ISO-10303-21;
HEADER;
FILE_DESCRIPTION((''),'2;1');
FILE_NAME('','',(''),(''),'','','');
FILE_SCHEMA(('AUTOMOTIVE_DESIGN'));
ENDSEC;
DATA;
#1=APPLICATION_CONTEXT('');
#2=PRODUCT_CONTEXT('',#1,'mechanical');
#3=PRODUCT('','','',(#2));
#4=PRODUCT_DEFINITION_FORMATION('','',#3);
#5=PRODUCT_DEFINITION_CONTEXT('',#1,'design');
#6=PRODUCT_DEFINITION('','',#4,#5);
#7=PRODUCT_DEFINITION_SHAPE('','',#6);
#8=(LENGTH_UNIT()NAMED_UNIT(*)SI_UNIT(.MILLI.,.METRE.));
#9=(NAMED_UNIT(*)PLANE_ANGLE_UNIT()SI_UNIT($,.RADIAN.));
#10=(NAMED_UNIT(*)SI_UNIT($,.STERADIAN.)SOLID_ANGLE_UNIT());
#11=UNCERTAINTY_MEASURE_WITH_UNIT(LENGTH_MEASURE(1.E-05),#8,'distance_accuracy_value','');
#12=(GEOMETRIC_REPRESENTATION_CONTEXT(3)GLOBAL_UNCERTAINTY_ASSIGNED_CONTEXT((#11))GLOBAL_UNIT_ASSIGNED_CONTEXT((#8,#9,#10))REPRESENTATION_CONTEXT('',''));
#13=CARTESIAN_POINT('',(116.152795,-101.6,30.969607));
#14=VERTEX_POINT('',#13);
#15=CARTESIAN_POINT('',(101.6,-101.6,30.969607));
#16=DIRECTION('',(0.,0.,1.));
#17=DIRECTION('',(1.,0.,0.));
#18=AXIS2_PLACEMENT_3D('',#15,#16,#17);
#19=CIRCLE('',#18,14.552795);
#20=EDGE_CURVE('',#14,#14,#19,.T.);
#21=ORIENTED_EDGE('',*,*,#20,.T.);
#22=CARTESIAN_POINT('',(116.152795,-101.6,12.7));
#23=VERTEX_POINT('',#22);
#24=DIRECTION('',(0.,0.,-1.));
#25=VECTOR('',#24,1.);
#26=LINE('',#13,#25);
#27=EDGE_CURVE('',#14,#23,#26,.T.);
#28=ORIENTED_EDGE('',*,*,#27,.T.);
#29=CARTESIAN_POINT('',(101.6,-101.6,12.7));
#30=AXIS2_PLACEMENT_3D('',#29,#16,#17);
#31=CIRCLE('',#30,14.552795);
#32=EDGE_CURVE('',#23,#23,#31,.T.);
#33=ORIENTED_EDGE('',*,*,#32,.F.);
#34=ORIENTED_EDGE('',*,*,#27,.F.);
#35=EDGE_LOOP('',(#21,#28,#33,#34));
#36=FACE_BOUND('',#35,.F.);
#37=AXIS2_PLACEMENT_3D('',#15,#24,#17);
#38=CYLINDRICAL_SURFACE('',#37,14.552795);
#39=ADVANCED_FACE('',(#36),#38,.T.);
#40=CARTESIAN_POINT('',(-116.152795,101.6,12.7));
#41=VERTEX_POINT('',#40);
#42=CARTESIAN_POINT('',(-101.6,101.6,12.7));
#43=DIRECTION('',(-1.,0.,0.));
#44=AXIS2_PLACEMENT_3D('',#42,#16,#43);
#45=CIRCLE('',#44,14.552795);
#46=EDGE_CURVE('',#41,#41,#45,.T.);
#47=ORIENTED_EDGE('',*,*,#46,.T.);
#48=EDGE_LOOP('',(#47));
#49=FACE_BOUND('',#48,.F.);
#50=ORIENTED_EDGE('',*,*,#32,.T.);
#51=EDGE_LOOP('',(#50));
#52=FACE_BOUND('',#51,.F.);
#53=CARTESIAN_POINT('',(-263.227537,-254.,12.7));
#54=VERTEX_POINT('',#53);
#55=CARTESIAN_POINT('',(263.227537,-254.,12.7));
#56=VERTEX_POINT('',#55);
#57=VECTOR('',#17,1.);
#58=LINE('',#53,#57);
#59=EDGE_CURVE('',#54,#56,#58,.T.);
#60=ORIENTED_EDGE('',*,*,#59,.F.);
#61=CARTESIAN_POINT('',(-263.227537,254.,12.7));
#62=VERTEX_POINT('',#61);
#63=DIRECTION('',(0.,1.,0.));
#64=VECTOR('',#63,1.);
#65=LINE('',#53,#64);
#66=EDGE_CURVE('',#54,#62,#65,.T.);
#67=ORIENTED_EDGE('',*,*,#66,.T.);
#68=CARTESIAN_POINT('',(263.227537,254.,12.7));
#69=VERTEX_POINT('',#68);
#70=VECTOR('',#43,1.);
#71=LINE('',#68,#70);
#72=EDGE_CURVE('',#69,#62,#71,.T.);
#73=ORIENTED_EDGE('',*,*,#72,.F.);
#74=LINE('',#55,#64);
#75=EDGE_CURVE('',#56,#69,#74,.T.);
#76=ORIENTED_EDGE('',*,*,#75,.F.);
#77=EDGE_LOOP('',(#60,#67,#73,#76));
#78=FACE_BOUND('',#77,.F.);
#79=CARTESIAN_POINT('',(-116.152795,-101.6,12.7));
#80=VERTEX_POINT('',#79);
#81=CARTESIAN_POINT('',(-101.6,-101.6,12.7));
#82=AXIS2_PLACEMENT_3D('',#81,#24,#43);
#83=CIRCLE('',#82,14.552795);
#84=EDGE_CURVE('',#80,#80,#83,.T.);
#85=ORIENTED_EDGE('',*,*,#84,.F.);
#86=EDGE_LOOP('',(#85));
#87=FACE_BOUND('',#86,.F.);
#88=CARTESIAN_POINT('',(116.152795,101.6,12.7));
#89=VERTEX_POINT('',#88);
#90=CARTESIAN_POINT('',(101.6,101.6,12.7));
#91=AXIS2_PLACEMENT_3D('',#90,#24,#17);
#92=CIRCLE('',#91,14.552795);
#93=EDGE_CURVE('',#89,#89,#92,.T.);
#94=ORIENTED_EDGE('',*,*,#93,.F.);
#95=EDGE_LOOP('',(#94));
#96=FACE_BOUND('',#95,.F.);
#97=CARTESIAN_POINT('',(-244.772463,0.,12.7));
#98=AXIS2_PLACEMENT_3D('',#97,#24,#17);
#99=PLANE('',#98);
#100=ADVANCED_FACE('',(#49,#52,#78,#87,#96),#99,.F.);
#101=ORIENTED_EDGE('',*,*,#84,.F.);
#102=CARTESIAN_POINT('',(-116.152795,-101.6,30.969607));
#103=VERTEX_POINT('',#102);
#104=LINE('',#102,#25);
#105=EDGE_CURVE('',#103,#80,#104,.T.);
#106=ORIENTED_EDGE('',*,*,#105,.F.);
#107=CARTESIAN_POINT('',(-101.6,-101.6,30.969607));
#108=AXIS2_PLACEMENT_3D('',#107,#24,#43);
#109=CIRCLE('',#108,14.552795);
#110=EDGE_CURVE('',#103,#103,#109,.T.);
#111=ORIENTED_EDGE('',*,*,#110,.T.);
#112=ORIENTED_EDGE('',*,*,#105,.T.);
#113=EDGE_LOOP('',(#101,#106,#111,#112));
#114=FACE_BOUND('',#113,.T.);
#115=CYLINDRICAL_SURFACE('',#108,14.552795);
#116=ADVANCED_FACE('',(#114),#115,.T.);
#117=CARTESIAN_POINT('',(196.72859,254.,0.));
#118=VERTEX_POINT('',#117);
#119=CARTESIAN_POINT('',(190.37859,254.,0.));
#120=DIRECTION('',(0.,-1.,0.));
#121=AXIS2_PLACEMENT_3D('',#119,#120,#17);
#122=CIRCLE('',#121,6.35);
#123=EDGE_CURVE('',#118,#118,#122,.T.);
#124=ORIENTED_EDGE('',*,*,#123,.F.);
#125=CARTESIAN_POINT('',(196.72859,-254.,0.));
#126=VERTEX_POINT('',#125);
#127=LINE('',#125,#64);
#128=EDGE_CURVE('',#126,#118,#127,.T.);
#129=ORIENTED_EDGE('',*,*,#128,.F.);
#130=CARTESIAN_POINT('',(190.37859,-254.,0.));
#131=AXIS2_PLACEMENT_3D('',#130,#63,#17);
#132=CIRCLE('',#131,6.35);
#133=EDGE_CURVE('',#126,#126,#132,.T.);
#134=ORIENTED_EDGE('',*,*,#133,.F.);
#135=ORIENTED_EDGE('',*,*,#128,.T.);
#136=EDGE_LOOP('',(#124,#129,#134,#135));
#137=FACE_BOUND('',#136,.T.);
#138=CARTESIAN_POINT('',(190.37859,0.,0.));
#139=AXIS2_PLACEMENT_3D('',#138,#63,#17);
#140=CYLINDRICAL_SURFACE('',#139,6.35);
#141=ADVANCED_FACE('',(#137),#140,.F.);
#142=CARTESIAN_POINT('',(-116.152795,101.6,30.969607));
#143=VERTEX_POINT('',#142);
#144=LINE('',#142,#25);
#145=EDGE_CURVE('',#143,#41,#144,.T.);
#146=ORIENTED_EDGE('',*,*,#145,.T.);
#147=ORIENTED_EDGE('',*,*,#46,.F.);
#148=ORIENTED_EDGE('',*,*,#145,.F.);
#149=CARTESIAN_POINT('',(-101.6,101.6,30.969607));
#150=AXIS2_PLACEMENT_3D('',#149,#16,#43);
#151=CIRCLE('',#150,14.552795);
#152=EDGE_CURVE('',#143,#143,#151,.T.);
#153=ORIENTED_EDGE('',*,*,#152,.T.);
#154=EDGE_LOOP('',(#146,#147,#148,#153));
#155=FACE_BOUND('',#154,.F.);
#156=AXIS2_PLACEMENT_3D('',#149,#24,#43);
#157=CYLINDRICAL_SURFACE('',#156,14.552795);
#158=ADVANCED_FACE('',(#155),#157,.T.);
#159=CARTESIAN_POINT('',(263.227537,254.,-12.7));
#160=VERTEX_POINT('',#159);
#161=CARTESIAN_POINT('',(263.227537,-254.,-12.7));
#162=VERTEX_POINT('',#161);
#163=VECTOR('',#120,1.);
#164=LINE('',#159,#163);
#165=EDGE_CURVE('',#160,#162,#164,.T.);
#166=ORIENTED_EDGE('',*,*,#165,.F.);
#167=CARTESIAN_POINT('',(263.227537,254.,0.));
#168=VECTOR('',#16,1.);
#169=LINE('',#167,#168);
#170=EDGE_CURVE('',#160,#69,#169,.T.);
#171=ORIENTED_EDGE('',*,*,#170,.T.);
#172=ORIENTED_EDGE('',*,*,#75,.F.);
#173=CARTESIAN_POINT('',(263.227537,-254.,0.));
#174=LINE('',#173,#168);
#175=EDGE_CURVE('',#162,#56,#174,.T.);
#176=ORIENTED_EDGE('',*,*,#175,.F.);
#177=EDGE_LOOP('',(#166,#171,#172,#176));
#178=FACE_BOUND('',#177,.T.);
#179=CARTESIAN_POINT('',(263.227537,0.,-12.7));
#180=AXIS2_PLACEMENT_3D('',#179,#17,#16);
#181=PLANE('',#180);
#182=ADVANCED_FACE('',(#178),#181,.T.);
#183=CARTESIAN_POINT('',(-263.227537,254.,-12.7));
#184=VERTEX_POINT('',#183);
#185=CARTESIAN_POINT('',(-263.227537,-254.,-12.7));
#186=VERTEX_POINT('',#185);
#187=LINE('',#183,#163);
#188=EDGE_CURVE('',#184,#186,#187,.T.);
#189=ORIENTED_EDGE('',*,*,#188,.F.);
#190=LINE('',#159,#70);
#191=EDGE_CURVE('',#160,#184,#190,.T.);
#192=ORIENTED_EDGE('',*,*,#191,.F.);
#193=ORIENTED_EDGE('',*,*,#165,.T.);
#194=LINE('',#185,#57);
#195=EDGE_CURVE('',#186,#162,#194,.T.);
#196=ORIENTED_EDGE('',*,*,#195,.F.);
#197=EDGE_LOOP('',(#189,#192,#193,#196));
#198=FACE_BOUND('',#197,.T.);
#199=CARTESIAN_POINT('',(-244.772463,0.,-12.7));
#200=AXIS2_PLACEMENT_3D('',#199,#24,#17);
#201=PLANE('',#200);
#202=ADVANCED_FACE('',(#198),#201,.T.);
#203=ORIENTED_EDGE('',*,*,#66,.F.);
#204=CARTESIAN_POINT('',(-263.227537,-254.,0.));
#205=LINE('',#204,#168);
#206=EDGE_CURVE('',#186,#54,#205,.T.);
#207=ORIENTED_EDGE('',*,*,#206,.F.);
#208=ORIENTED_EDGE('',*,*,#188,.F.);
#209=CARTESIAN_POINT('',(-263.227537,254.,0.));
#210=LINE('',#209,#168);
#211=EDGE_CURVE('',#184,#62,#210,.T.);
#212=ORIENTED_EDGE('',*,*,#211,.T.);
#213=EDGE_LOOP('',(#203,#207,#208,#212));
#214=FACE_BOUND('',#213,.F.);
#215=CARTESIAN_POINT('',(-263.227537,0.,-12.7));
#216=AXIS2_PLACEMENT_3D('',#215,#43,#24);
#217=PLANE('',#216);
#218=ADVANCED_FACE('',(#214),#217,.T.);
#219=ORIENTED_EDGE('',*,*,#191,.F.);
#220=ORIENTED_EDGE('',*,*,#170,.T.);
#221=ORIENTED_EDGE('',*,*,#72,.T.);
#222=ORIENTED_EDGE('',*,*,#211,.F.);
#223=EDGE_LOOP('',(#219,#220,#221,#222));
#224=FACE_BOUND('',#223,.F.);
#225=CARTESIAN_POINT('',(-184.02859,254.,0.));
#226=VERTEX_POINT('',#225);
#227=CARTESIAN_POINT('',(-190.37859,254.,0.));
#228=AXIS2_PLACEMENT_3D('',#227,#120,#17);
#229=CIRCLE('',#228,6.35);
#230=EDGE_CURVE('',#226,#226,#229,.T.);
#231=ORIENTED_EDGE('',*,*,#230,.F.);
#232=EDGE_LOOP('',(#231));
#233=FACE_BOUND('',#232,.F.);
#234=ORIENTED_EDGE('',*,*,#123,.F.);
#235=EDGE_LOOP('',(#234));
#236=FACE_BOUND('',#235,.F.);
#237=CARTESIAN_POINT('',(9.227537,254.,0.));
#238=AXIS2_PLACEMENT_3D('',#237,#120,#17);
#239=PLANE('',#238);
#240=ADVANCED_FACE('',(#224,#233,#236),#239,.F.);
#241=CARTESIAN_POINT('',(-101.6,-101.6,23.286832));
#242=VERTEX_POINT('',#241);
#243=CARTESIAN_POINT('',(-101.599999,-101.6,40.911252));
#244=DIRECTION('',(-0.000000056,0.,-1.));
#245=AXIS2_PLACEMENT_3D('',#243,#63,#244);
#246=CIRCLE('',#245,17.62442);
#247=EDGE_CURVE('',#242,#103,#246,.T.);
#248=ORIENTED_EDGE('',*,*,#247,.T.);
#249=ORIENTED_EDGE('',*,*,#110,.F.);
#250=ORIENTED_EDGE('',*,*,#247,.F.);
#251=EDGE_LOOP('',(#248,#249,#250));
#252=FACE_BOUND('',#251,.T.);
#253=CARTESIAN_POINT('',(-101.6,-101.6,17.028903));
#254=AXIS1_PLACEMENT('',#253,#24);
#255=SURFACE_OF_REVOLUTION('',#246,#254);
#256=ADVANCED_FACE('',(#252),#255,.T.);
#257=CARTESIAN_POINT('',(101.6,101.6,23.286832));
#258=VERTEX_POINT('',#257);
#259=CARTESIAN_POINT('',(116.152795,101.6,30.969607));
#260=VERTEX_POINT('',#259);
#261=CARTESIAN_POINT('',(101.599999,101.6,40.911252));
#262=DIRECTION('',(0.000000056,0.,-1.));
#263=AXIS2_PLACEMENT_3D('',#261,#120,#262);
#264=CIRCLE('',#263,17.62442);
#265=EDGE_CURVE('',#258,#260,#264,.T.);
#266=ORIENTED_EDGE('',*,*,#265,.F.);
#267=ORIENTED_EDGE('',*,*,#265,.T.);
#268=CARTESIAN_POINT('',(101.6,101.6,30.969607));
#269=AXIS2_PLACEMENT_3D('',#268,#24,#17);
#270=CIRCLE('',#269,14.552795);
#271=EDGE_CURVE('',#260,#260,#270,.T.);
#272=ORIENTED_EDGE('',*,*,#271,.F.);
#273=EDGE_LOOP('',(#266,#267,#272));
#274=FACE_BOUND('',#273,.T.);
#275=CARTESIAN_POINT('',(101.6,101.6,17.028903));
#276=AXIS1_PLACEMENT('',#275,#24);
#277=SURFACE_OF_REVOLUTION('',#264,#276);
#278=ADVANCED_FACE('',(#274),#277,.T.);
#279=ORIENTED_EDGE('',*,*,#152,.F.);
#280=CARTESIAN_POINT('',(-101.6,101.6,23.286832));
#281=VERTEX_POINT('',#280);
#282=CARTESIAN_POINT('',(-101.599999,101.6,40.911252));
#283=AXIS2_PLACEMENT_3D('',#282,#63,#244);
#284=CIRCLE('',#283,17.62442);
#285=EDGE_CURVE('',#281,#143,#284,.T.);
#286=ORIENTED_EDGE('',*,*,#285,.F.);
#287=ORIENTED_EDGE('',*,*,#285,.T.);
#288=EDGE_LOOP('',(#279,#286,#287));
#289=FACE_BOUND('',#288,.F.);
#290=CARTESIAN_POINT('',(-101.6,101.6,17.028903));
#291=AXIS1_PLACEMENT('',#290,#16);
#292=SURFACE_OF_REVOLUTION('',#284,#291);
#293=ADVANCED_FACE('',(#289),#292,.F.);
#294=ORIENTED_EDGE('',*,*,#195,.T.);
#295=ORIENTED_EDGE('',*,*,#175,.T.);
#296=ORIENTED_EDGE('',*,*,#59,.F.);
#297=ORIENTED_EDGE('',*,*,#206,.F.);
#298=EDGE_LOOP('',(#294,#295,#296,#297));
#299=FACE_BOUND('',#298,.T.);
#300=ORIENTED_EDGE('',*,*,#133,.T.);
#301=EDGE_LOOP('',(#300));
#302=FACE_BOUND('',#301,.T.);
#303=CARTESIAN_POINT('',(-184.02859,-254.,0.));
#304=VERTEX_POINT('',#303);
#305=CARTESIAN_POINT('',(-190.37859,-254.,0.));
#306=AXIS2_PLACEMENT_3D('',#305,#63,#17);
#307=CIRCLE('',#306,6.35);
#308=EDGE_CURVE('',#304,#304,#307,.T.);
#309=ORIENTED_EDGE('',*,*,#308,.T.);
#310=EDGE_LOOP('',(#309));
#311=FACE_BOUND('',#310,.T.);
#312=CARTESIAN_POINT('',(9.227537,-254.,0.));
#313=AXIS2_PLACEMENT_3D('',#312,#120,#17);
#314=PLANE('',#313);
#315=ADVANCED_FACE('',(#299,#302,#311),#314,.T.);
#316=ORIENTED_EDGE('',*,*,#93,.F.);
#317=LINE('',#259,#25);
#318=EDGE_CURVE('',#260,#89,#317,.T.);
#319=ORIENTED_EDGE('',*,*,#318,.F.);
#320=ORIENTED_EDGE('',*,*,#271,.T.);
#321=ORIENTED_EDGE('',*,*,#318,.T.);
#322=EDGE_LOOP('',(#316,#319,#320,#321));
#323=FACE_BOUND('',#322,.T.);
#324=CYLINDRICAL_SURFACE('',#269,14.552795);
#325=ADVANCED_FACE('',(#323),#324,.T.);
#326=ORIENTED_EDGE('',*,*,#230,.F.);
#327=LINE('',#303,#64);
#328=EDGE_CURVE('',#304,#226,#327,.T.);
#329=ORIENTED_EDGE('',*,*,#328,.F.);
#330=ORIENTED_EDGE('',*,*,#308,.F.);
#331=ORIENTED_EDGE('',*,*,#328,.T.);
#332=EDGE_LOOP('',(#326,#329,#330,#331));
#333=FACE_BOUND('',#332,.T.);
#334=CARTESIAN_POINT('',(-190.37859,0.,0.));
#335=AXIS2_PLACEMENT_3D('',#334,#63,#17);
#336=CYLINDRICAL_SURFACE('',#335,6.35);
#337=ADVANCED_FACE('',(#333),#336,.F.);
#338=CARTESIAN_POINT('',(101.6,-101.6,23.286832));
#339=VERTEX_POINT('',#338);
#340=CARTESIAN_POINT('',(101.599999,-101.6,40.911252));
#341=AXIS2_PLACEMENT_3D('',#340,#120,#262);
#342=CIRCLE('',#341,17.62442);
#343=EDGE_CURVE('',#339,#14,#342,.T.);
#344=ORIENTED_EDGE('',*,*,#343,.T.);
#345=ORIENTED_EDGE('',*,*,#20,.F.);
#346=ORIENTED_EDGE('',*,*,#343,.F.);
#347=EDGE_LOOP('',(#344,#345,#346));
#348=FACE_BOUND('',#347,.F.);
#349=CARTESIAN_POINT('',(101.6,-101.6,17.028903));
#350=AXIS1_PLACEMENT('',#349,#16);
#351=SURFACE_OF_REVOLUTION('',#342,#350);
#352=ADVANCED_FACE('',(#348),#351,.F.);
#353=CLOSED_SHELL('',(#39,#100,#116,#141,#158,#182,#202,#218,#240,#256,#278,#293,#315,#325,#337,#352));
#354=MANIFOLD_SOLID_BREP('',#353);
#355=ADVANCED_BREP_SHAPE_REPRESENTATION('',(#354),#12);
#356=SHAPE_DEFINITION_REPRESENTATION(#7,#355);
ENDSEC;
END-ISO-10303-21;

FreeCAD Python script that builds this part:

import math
import FreeCAD as App
import Part
import Sketcher
Q = App.Units.Quantity

doc = App.newDocument("Part")
body = doc.addObject("PartDesign::Body", "Body")

# Sketch on XZ plane
sketch1 = doc.addObject("Sketcher::SketchObject", "Sketch")
body.addObject(sketch1)
sketch1.AttachmentSupport = (doc.XZ_Plane, [""])
sketch1.MapMode = "FlatFace"
sketch1.addGeometry([
    Part.LineSegment(App.Vector(-244.772463, 12.7, 0), App.Vector(-244.772463, -12.7, 0)),  # 0
    Part.LineSegment(App.Vector(-244.772463, -12.7, 0), App.Vector(263.227537, -12.7, 0)),  # 1
    Part.LineSegment(App.Vector(263.227537, -12.7, 0), App.Vector(263.227537, 12.7, 0)),  # 2
    Part.LineSegment(App.Vector(263.227537, 12.7, 0), App.Vector(-244.772463, 12.7, 0)),  # 3
    Part.Circle(App.Vector(-190.37859, 0, 0), App.Vector(0, 0, 1), 6.35),  # 4
    Part.Circle(App.Vector(190.37859, 0, 0), App.Vector(0, 0, 1), 6.35),  # 5
], False)
sketch1.addConstraint([
    Sketcher.Constraint("Coincident", 0, 2, 1, 1),
    Sketcher.Constraint("Coincident", 1, 2, 2, 1),
    Sketcher.Constraint("Coincident", 2, 2, 3, 1),
    Sketcher.Constraint("Coincident", 3, 2, 0, 1),
    Sketcher.Constraint("Vertical", 0),
    Sketcher.Constraint("Horizontal", 1),
    Sketcher.Constraint("Vertical", 2),
    Sketcher.Constraint("Horizontal", 3),
    Sketcher.Constraint("Equal", 4, 5),
    Sketcher.Constraint("Symmetric", 4, 3, 5, 3, -1, 1),
    Sketcher.Constraint("PointOnObject", 4, 3, -1),
    Sketcher.Constraint("Diameter", 4, Q("0.5 in")),
    Sketcher.Constraint("DistanceX", 1, 1, 1, 2, Q("20 in")),
    Sketcher.Constraint("DistanceY", 0, 2, 0, 1, Q("1 in")),
    Sketcher.Constraint("DistanceY", 0, 2, -1, 1, Q("0.5 in")),
    Sketcher.Constraint("DistanceX", 4, 3, -1, 1, Q("190.37859 mm")),
    Sketcher.Constraint("DistanceX", 0, 2, -1, 1, Q("244.772463 mm")),
])
pad1 = doc.addObject("PartDesign::Pad", "Pad")
body.addObject(pad1)
pad1.Profile = sketch1
pad1.Length = Q("20 in")
pad1.Midplane = True

# Sketch on XZ plane
sketch2 = doc.addObject("Sketcher::SketchObject", "Sketch001")
body.addObject(sketch2)
sketch2.AttachmentSupport = (doc.XZ_Plane, [""])
sketch2.MapMode = "FlatFace"
sketch2.AttachmentOffset = App.Placement(App.Vector(0, 0, 4 * 25.4), App.Rotation())
sketch2.addGeometry([
    Part.ArcOfCircle(Part.Circle(App.Vector(-101.599999, 40.911252, 0), App.Vector(0, 0, 1), 17.62442), math.radians(-145.661326), math.radians(-90.000003)),
    Part.LineSegment(App.Vector(-116.152795, 30.969607, 0), App.Vector(-116.152795, 10.770973, 0)),
    Part.LineSegment(App.Vector(-116.152795, 10.770973, 0), App.Vector(-101.6, 10.770973, 0)),
    Part.LineSegment(App.Vector(-101.6, 10.770973, 0), App.Vector(-101.6, 23.286832, 0)),
], False)
sketch2.addGeometry(Part.LineSegment(App.Vector(-101.6, 40.911252, 0), App.Vector(-101.6, 10.770973, 0)), True)  # axis
sketch2.addConstraint([
    Sketcher.Constraint("Coincident", 0, 1, 1, 1),
    Sketcher.Constraint("Coincident", 1, 2, 2, 1),
    Sketcher.Constraint("Coincident", 2, 2, 3, 1),
    Sketcher.Constraint("Coincident", 3, 2, 0, 2),
    Sketcher.Constraint("Vertical", 1),
    Sketcher.Constraint("Horizontal", 2),
    Sketcher.Constraint("Vertical", 3),
    Sketcher.Constraint("Vertical", 4),
    Sketcher.Constraint("Coincident", 4, 1, 0, 3),
    Sketcher.Constraint("Coincident", 4, 2, 2, 2),
    Sketcher.Constraint("DistanceX", 0, 3, -1, 1, Q("4 in")),
    Sketcher.Constraint("Radius", 0, Q("17.62442 mm")),
    Sketcher.Constraint("DistanceY", 3, 1, 3, 2, Q("12.515859 mm")),
    Sketcher.Constraint("DistanceX", 2, 1, 2, 2, Q("14.552795 mm")),
    Sketcher.Constraint("DistanceY", -1, 1, 0, 3, Q("40.911252 mm")),
])
revolution = doc.addObject("PartDesign::Revolution", "Revolution")
body.addObject(revolution)
revolution.Profile = sketch2
revolution.ReferenceAxis = (sketch2, ["Axis0"])
revolution.Angle = 360
body2 = doc.addObject("PartDesign::Body", "Body001")
doc.recompute()

body2.BaseFeature = body
doc.recompute()

mirroring = doc.addObject("Part::Mirroring", "Mirroring")
mirroring.Source = body
mirroring.Base = App.Vector(0, 0, 0)
mirroring.Normal = App.Vector(1, 0, 0)
body3 = doc.addObject("PartDesign::Body", "Body002")
body3.BaseFeature = mirroring
boolean = doc.addObject("PartDesign::Boolean", "Boolean")
body2.addObject(boolean)
boolean.Type = "Fuse"
boolean.addObjects([body3])
doc.recompute()
body4 = doc.addObject("PartDesign::Body", "Body003")
doc.recompute()

body4.BaseFeature = body2
doc.recompute()

mirroring2 = doc.addObject("Part::Mirroring", "Mirroring001")
mirroring2.Source = body2
mirroring2.Base = App.Vector(0, 0, 0)
mirroring2.Normal = App.Vector(0, -1, 0)
body5 = doc.addObject("PartDesign::Body", "Body004")
body5.BaseFeature = mirroring2
boolean2 = doc.addObject("PartDesign::Boolean", "Boolean001")
body4.addObject(boolean2)
boolean2.Type = "Fuse"
boolean2.addObjects([body5])
doc.recompute()
mirroring.Visibility = False
mirroring2.Visibility = False

doc.recompute()
